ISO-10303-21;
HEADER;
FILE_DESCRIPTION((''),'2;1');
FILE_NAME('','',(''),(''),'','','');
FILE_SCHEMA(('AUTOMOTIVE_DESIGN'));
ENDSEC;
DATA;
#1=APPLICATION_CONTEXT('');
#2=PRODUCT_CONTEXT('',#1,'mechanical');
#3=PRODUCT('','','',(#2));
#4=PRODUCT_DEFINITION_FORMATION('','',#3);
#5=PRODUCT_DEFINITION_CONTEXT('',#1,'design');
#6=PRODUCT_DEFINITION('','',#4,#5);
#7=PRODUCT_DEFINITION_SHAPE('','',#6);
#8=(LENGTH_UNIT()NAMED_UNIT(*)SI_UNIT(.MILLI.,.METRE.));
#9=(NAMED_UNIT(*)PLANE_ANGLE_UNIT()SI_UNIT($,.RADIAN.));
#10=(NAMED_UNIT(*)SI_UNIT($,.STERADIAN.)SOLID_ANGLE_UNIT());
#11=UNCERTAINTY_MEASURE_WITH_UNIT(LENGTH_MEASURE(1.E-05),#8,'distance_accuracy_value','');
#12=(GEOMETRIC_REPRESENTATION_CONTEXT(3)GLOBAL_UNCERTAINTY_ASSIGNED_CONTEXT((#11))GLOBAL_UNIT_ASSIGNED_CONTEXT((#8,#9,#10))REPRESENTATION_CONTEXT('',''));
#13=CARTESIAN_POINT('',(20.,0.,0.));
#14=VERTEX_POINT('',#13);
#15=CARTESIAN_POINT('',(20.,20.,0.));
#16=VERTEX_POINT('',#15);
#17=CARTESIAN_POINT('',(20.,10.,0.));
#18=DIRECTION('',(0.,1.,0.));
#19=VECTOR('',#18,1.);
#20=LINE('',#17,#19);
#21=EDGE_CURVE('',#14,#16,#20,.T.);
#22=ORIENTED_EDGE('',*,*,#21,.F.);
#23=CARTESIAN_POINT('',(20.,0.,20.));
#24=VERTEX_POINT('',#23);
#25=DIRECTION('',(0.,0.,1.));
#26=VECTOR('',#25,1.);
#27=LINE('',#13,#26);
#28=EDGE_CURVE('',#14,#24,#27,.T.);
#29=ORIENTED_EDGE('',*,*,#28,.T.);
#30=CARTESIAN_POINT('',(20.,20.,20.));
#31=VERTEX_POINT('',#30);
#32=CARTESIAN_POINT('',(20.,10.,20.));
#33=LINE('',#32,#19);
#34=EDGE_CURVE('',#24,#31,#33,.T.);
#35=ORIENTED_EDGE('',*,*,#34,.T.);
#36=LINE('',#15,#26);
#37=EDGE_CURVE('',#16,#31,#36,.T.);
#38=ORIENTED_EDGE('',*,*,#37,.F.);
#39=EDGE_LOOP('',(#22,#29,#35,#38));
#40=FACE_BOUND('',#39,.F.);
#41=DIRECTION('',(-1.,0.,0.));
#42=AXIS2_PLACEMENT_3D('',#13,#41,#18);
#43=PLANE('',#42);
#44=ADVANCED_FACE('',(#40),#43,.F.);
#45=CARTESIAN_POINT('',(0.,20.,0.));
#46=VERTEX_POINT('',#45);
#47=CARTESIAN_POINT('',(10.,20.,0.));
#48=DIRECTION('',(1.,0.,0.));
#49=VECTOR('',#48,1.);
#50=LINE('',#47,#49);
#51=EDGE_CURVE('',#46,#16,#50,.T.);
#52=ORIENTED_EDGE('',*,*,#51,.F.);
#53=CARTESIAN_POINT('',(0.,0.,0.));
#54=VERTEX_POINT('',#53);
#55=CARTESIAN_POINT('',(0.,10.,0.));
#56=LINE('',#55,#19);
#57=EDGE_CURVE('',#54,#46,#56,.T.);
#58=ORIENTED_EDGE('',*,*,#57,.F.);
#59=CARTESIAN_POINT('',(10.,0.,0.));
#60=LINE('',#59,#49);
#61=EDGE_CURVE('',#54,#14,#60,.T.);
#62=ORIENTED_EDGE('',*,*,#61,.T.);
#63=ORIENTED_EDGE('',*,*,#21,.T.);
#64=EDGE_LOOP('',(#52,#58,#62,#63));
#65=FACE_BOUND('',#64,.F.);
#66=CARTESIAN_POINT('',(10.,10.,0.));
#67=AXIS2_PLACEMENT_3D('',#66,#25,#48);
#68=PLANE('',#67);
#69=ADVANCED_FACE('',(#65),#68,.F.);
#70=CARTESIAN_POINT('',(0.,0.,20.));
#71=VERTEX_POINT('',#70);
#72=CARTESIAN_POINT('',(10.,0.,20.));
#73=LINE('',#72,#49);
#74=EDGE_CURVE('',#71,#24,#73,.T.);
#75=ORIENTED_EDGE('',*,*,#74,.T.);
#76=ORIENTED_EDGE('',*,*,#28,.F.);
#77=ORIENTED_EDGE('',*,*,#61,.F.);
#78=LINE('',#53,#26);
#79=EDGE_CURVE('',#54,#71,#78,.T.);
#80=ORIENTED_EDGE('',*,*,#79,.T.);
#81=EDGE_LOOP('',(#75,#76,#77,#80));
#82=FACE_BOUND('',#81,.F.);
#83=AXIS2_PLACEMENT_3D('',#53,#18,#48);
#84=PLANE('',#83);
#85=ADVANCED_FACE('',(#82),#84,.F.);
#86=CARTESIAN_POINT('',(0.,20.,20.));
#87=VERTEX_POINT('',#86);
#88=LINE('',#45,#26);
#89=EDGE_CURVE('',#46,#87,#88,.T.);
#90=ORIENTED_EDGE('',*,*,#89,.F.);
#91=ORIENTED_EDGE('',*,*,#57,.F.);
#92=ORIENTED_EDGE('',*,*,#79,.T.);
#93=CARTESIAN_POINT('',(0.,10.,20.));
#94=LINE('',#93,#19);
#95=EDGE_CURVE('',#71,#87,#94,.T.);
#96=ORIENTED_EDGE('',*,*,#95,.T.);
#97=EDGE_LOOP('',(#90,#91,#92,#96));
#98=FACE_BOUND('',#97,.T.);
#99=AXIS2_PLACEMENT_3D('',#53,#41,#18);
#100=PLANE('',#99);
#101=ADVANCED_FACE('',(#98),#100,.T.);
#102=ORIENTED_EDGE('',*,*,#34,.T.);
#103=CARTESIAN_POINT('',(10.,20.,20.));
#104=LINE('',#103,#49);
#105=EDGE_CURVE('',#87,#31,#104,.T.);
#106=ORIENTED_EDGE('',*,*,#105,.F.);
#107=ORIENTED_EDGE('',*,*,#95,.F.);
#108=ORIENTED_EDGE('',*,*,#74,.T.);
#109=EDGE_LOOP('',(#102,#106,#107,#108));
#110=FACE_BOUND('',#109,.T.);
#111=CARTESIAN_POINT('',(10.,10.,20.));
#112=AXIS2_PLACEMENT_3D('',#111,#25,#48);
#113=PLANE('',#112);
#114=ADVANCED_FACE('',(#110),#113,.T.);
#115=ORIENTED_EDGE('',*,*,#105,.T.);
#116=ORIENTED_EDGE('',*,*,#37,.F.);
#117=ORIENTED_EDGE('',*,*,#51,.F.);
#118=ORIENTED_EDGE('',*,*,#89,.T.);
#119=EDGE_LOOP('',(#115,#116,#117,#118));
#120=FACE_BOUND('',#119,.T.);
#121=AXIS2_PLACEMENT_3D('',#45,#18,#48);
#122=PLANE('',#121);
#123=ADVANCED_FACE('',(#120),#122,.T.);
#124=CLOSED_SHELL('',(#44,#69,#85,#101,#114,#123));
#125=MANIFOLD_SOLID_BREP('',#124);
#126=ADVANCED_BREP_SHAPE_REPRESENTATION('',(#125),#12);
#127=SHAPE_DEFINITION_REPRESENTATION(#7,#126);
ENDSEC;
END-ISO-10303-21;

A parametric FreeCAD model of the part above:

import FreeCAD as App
import Part
import Sketcher
Q = App.Units.Quantity


def add_polygon(sketch, points):
    """Adds a closed chain of lines whose ends are joined by coincident constraints."""
    first, n = sketch.GeometryCount, len(points)
    for a, b in zip(points, points[1:] + points[:1]):
        sketch.addGeometry(Part.LineSegment(App.Vector(*a, 0), App.Vector(*b, 0)), False)
    for i in range(n):
        sketch.addConstraint(Sketcher.Constraint("Coincident", first + i, 2, first + (i + 1) % n, 1))

doc = App.newDocument("Part")
body = doc.addObject("PartDesign::Body", "Body")

# Sketch on XY plane
sketch1 = body.newObject("Sketcher::SketchObject", "Sketch")
sketch1.AttachmentSupport = (doc.getObject("XY_Plane"), [""])
sketch1.MapMode = "FlatFace"
add_polygon(sketch1, [(0, 20), (0, 0), (20, 0), (20, 20)])  # lines 0-3
sketch1.addConstraint(Sketcher.Constraint("Vertical", 0))
sketch1.addConstraint(Sketcher.Constraint("Horizontal", 1))
sketch1.addConstraint(Sketcher.Constraint("Vertical", 2))
sketch1.addConstraint(Sketcher.Constraint("Horizontal", 3))
sketch1.addConstraint(Sketcher.Constraint("Coincident", 0, 2, -1, 1))
sketch1.addConstraint(Sketcher.Constraint("Equal", 3, 0))
sketch1.addConstraint(Sketcher.Constraint("DistanceX", 1, 1, 1, 2, Q("20 mm")))
pad1 = body.newObject("PartDesign::Pad", "Pad")
pad1.Profile = sketch1
pad1.Length = 20

doc.recompute()
